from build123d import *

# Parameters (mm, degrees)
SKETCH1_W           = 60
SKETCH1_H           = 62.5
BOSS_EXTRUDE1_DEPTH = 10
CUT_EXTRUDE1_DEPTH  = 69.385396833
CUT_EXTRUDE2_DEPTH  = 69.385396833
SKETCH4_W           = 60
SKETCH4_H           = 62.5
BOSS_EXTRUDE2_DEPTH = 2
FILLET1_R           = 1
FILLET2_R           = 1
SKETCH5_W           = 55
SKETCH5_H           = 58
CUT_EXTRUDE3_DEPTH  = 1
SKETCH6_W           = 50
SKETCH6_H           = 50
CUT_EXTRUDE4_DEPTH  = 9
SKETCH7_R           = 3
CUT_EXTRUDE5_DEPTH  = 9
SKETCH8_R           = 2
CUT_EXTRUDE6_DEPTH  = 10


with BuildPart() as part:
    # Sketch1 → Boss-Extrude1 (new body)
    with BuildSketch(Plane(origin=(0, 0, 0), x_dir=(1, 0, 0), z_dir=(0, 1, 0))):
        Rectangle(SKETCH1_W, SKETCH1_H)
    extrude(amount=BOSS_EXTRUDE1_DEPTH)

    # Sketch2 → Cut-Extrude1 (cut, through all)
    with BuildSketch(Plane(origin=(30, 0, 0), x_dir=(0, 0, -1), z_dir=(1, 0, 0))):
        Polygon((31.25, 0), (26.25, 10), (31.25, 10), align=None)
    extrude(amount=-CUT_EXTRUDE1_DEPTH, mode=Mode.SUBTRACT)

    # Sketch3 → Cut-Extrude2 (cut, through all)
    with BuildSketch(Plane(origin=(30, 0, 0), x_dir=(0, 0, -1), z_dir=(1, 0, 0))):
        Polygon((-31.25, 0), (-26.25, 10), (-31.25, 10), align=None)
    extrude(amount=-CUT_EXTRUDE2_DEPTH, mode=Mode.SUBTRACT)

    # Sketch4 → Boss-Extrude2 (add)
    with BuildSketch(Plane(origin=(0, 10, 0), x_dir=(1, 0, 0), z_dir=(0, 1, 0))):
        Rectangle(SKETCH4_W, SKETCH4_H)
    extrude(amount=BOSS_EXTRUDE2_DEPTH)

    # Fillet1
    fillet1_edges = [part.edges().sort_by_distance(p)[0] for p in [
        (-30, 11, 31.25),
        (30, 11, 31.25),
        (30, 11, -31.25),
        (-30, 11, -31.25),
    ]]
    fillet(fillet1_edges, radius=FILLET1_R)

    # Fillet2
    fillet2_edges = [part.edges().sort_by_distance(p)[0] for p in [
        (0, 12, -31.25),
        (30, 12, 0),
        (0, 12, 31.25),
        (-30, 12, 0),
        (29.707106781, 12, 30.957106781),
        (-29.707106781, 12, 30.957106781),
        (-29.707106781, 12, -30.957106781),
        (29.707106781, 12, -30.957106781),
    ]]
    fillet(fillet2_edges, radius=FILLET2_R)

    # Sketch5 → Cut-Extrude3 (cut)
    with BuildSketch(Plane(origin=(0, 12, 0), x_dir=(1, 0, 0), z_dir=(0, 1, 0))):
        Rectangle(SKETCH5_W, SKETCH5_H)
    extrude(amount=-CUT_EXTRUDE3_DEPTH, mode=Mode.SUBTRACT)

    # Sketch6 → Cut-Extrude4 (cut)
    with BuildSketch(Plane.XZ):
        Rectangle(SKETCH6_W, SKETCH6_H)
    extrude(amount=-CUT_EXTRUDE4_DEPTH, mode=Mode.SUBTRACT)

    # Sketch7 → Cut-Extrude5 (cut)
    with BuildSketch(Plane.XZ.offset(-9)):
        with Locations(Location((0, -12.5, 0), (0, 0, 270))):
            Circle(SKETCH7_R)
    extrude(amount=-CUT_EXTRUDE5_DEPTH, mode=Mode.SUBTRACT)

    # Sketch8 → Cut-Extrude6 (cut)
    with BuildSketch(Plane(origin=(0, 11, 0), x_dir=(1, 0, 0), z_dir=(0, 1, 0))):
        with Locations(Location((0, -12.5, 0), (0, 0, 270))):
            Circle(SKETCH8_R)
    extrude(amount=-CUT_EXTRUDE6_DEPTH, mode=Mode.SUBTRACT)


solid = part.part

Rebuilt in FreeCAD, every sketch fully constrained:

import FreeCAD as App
import Part
import Sketcher

V = App.Vector
Q = App.Units.Quantity


def edges_at(feature, points):
    """Names of the edges that pass closest to the given points."""
    edges = feature.Shape.Edges
    near = lambda p: min(range(len(edges)), key=lambda i: edges[i].distToShape(Part.Vertex(*p))[0])
    return sorted({f"Edge{near(p) + 1}" for p in points})

doc = App.newDocument("Part")
params = doc.addObject("Spreadsheet::Sheet", "Params")
for row, (alias, value) in enumerate([
    ("sketch1_width", "60 mm"),
    ("sketch1_height", "62.5 mm"),
    ("pad1_length", "10 mm"),
    ("sketch2_width", "10 mm"),
    ("sketch2_height", "5 mm"),
    ("sketch3_width", "10 mm"),
    ("sketch3_height", "5 mm"),
    ("sketch4_width", "60 mm"),
    ("sketch4_height", "62.5 mm"),
    ("pad2_length", "2 mm"),
    ("fillet_radius", "1 mm"),
    ("fillet2_radius", "1 mm"),
    ("sketch5_width", "55 mm"),
    ("sketch5_height", "58 mm"),
    ("pocket3_length", "1 mm"),
    ("sketch6_width", "50 mm"),
    ("pocket4_length", "9 mm"),
    ("sketch7_diameter", "6 mm"),
    ("pocket5_length", "9 mm"),
    ("sketch8_diameter", "4 mm"),
    ("pocket6_length", "10 mm"),
], start=1):
    params.set(f"A{row}", alias)
    params.set(f"B{row}", "=" + value)
    params.setAlias(f"B{row}", alias)

body = doc.addObject("PartDesign::Body", "Body")

# Sketch on XZ plane
sketch1 = body.newObject("Sketcher::SketchObject", "Sketch")
sketch1.AttachmentSupport = (doc.getObject("XZ_Plane"), [""])
sketch1.MapMode = "FlatFace"
sketch1.addGeometry(Part.LineSegment(V(-30, -31, 0), V(-30, 31, 0)), False)
sketch1.addGeometry(Part.LineSegment(V(-30, 31, 0), V(30, 31, 0)), False)
sketch1.addGeometry(Part.LineSegment(V(30, 31, 0), V(30, -31, 0)), False)
sketch1.addGeometry(Part.LineSegment(V(30, -31, 0), V(-30, -31, 0)), False)
sketch1.addConstraint(Sketcher.Constraint("Coincident", 0, 2, 1, 1))
sketch1.addConstraint(Sketcher.Constraint("Coincident", 1, 2, 2, 1))
sketch1.addConstraint(Sketcher.Constraint("Coincident", 2, 2, 3, 1))
sketch1.addConstraint(Sketcher.Constraint("Coincident", 3, 2, 0, 1))
sketch1.addConstraint(Sketcher.Constraint("Vertical", 0))
sketch1.addConstraint(Sketcher.Constraint("Horizontal", 1))
sketch1.addConstraint(Sketcher.Constraint("Vertical", 2))
sketch1.addConstraint(Sketcher.Constraint("Horizontal", 3))
sketch1.addConstraint(Sketcher.Constraint("Symmetric", 0, 2, 2, 2, -1, 1))
sketch1.addConstraint(Sketcher.Constraint("DistanceX", 1, 1, 1, 2, Q("60 mm")))
sketch1.addConstraint(Sketcher.Constraint("DistanceY", 0, 1, 0, 2, Q("62.5 mm")))
sketch1.setExpression("Constraints[9]", "Params.sketch1_width")
sketch1.setExpression("Constraints[10]", "Params.sketch1_height")
pad1 = body.newObject("PartDesign::Pad", "Pad")
pad1.Profile = sketch1
pad1.setExpression("Length", "Params.pad1_length")
pad1.Reversed = True

# Sketch on YZ plane
sketch2 = body.newObject("Sketcher::SketchObject", "Sketch001")
sketch2.AttachmentSupport = (doc.getObject("YZ_Plane"), [""])
sketch2.MapMode = "FlatFace"
sketch2.AttachmentOffset = App.Placement(V(0, 0, 30), App.Rotation())
sketch2.addGeometry(Part.LineSegment(V(10, -26, 0), V(0, -31, 0)), False)
sketch2.addGeometry(Part.LineSegment(V(0, -31, 0), V(10, -31, 0)), False)
sketch2.addGeometry(Part.LineSegment(V(10, -31, 0), V(10, -26, 0)), False)
sketch2.addConstraint(Sketcher.Constraint("Coincident", 0, 2, 1, 1))
sketch2.addConstraint(Sketcher.Constraint("Coincident", 1, 2, 2, 1))
sketch2.addConstraint(Sketcher.Constraint("Coincident", 2, 2, 0, 1))
sketch2.addConstraint(Sketcher.Constraint("Horizontal", 1))
sketch2.addConstraint(Sketcher.Constraint("Vertical", 2))
sketch2.addConstraint(Sketcher.Constraint("PointOnObject", 0, 2, -2))
sketch2.addConstraint(Sketcher.Constraint("DistanceX", 1, 1, 1, 2, Q("10 mm")))
sketch2.addConstraint(Sketcher.Constraint("DistanceY", 2, 1, 2, 2, Q("5 mm")))
sketch2.addConstraint(Sketcher.Constraint("DistanceY", 0, 2, -1, 1, Q("31.25 mm")))
sketch2.setExpression("Constraints[6]", "Params.sketch2_width")
sketch2.setExpression("Constraints[7]", "Params.sketch2_height")
pocket1 = body.newObject("PartDesign::Pocket", "Pocket")
pocket1.Profile = sketch2
pocket1.Type = "ThroughAll"

# Sketch on YZ plane
sketch3 = body.newObject("Sketcher::SketchObject", "Sketch002")
sketch3.AttachmentSupport = (doc.getObject("YZ_Plane"), [""])
sketch3.MapMode = "FlatFace"
sketch3.AttachmentOffset = App.Placement(V(0, 0, 30), App.Rotation())
sketch3.addGeometry(Part.LineSegment(V(0, 31, 0), V(10, 26, 0)), False)
sketch3.addGeometry(Part.LineSegment(V(10, 26, 0), V(10, 31, 0)), False)
sketch3.addGeometry(Part.LineSegment(V(10, 31, 0), V(0, 31, 0)), False)
sketch3.addConstraint(Sketcher.Constraint("Coincident", 0, 2, 1, 1))
sketch3.addConstraint(Sketcher.Constraint("Coincident", 1, 2, 2, 1))
sketch3.addConstraint(Sketcher.Constraint("Coincident", 2, 2, 0, 1))
sketch3.addConstraint(Sketcher.Constraint("Vertical", 1))
sketch3.addConstraint(Sketcher.Constraint("Horizontal", 2))
sketch3.addConstraint(Sketcher.Constraint("PointOnObject", 2, 2, -2))
sketch3.addConstraint(Sketcher.Constraint("DistanceX", 2, 2, 2, 1, Q("10 mm")))
sketch3.addConstraint(Sketcher.Constraint("DistanceY", 1, 1, 1, 2, Q("5 mm")))
sketch3.addConstraint(Sketcher.Constraint("DistanceY", -1, 1, 0, 2, Q("26.25 mm")))
sketch3.setExpression("Constraints[6]", "Params.sketch3_width")
sketch3.setExpression("Constraints[7]", "Params.sketch3_height")
pocket2 = body.newObject("PartDesign::Pocket", "Pocket001")
pocket2.Profile = sketch3
pocket2.Type = "ThroughAll"

# Sketch on XZ plane
sketch4 = body.newObject("Sketcher::SketchObject", "Sketch003")
sketch4.AttachmentSupport = (doc.getObject("XZ_Plane"), [""])
sketch4.MapMode = "FlatFace"
sketch4.AttachmentOffset = App.Placement(V(0, 0, -10), App.Rotation())
sketch4.addGeometry(Part.LineSegment(V(-30, -31, 0), V(-30, 31, 0)), False)
sketch4.addGeometry(Part.LineSegment(V(-30, 31, 0), V(30, 31, 0)), False)
sketch4.addGeometry(Part.LineSegment(V(30, 31, 0), V(30, -31, 0)), False)
sketch4.addGeometry(Part.LineSegment(V(30, -31, 0), V(-30, -31, 0)), False)
sketch4.addConstraint(Sketcher.Constraint("Coincident", 0, 2, 1, 1))
sketch4.addConstraint(Sketcher.Constraint("Coincident", 1, 2, 2, 1))
sketch4.addConstraint(Sketcher.Constraint("Coincident", 2, 2, 3, 1))
sketch4.addConstraint(Sketcher.Constraint("Coincident", 3, 2, 0, 1))
sketch4.addConstraint(Sketcher.Constraint("Vertical", 0))
sketch4.addConstraint(Sketcher.Constraint("Horizontal", 1))
sketch4.addConstraint(Sketcher.Constraint("Vertical", 2))
sketch4.addConstraint(Sketcher.Constraint("Horizontal", 3))
sketch4.addConstraint(Sketcher.Constraint("Symmetric", 0, 2, 2, 2, -1, 1))
sketch4.addConstraint(Sketcher.Constraint("DistanceX", 1, 1, 1, 2, Q("60 mm")))
sketch4.addConstraint(Sketcher.Constraint("DistanceY", 0, 1, 0, 2, Q("62.5 mm")))
sketch4.setExpression("Constraints[9]", "Params.sketch4_width")
sketch4.setExpression("Constraints[10]", "Params.sketch4_height")
pad2 = body.newObject("PartDesign::Pad", "Pad001")
pad2.Profile = sketch4
pad2.setExpression("Length", "Params.pad2_length")
pad2.Reversed = True
doc.recompute()

fillet = body.newObject("PartDesign::Fillet", "Fillet")
fillet.Base = (pad2, edges_at(pad2, [
    (-30, 11, 31.25),
    (30, 11, 31.25),
    (30, 11, -31.25),
    (-30, 11, -31.25),
]))
fillet.setExpression("Radius", "Params.fillet_radius")
doc.recompute()

fillet2 = body.newObject("PartDesign::Fillet", "Fillet001")
fillet2.Base = (fillet, edges_at(fillet, [
    (0, 12, -31.25),
    (30, 12, 0),
    (0, 12, 31.25),
    (-30, 12, 0),
    (29.707, 12, 30.957),
    (-29.707, 12, 30.957),
    (-29.707, 12, -30.957),
    (29.707, 12, -30.957),
]))
fillet2.setExpression("Radius", "Params.fillet2_radius")

# Sketch on XZ plane
sketch5 = body.newObject("Sketcher::SketchObject", "Sketch004")
sketch5.AttachmentSupport = (doc.getObject("XZ_Plane"), [""])
sketch5.MapMode = "FlatFace"
sketch5.AttachmentOffset = App.Placement(V(0, 0, -12), App.Rotation())
sketch5.addGeometry(Part.LineSegment(V(-28, -29, 0), V(-28, 29, 0)), False)
sketch5.addGeometry(Part.LineSegment(V(-28, 29, 0), V(28, 29, 0)), False)
sketch5.addGeometry(Part.LineSegment(V(28, 29, 0), V(28, -29, 0)), False)
sketch5.addGeometry(Part.LineSegment(V(28, -29, 0), V(-28, -29, 0)), False)
sketch5.addConstraint(Sketcher.Constraint("Coincident", 0, 2, 1, 1))
sketch5.addConstraint(Sketcher.Constraint("Coincident", 1, 2, 2, 1))
sketch5.addConstraint(Sketcher.Constraint("Coincident", 2, 2, 3, 1))
sketch5.addConstraint(Sketcher.Constraint("Coincident", 3, 2, 0, 1))
sketch5.addConstraint(Sketcher.Constraint("Vertical", 0))
sketch5.addConstraint(Sketcher.Constraint("Horizontal", 1))
sketch5.addConstraint(Sketcher.Constraint("Vertical", 2))
sketch5.addConstraint(Sketcher.Constraint("Horizontal", 3))
sketch5.addConstraint(Sketcher.Constraint("Symmetric", 0, 2, 2, 2, -1, 1))
sketch5.addConstraint(Sketcher.Constraint("DistanceX", 1, 1, 1, 2, Q("55 mm")))
sketch5.addConstraint(Sketcher.Constraint("DistanceY", 0, 1, 0, 2, Q("58 mm")))
sketch5.setExpression("Constraints[9]", "Params.sketch5_width")
sketch5.setExpression("Constraints[10]", "Params.sketch5_height")
pocket3 = body.newObject("PartDesign::Pocket", "Pocket002")
pocket3.Profile = sketch5
pocket3.setExpression("Length", "Params.pocket3_length")
pocket3.Reversed = True

# Sketch on XZ plane
sketch6 = body.newObject("Sketcher::SketchObject", "Sketch005")
sketch6.AttachmentSupport = (doc.getObject("XZ_Plane"), [""])
sketch6.MapMode = "FlatFace"
sketch6.addGeometry(Part.LineSegment(V(-25, 25, 0), V(-25, -25, 0)), False)
sketch6.addGeometry(Part.LineSegment(V(-25, -25, 0), V(25, -25, 0)), False)
sketch6.addGeometry(Part.LineSegment(V(25, -25, 0), V(25, 25, 0)), False)
sketch6.addGeometry(Part.LineSegment(V(25, 25, 0), V(-25, 25, 0)), False)
sketch6.addConstraint(Sketcher.Constraint("Coincident", 0, 2, 1, 1))
sketch6.addConstraint(Sketcher.Constraint("Coincident", 1, 2, 2, 1))
sketch6.addConstraint(Sketcher.Constraint("Coincident", 2, 2, 3, 1))
sketch6.addConstraint(Sketcher.Constraint("Coincident", 3, 2, 0, 1))
sketch6.addConstraint(Sketcher.Constraint("Vertical", 0))
sketch6.addConstraint(Sketcher.Constraint("Horizontal", 1))
sketch6.addConstraint(Sketcher.Constraint("Vertical", 2))
sketch6.addConstraint(Sketcher.Constraint("Horizontal", 3))
sketch6.addConstraint(Sketcher.Constraint("Symmetric", 0, 2, 2, 2, -1, 1))
sketch6.addConstraint(Sketcher.Constraint("Equal", 3, 0))
sketch6.addConstraint(Sketcher.Constraint("DistanceX", 1, 1, 1, 2, Q("50 mm")))
sketch6.setExpression("Constraints[10]", "Params.sketch6_width")
pocket4 = body.newObject("PartDesign::Pocket", "Pocket003")
pocket4.Profile = sketch6
pocket4.setExpression("Length", "Params.pocket4_length")

# Sketch on XZ plane
sketch7 = body.newObject("Sketcher::SketchObject", "Sketch006")
sketch7.AttachmentSupport = (doc.getObject("XZ_Plane"), [""])
sketch7.MapMode = "FlatFace"
sketch7.AttachmentOffset = App.Placement(V(0, 0, -9), App.Rotation())
sketch7.addGeometry(Part.Circle(V(0, -12.5, 0), V(0, 0, 1), 3), False)
sketch7.addConstraint(Sketcher.Constraint("PointOnObject", 0, 3, -2))
sketch7.addConstraint(Sketcher.Constraint("Diameter", 0, Q("6 mm")))
sketch7.addConstraint(Sketcher.Constraint("DistanceY", 0, 3, -1, 1, Q("12.5 mm")))
sketch7.setExpression("Constraints[1]", "Params.sketch7_diameter")
pocket5 = body.newObject("PartDesign::Pocket", "Pocket004")
pocket5.Profile = sketch7
pocket5.setExpression("Length", "Params.pocket5_length")

# Sketch on XZ plane
sketch8 = body.newObject("Sketcher::SketchObject", "Sketch007")
sketch8.AttachmentSupport = (doc.getObject("XZ_Plane"), [""])
sketch8.MapMode = "FlatFace"
sketch8.AttachmentOffset = App.Placement(V(0, 0, -11), App.Rotation())
sketch8.addGeometry(Part.Circle(V(0, 12.5, 0), V(0, 0, 1), 2), False)
sketch8.addConstraint(Sketcher.Constraint("PointOnObject", 0, 3, -2))
sketch8.addConstraint(Sketcher.Constraint("Diameter", 0, Q("4 mm")))
sketch8.addConstraint(Sketcher.Constraint("DistanceY", -1, 1, 0, 3, Q("12.5 mm")))
sketch8.setExpression("Constraints[1]", "Params.sketch8_diameter")
pocket6 = body.newObject("PartDesign::Pocket", "Pocket005")
pocket6.Profile = sketch8
pocket6.setExpression("Length", "Params.pocket6_length")
pocket6.Reversed = True

doc.recompute()
